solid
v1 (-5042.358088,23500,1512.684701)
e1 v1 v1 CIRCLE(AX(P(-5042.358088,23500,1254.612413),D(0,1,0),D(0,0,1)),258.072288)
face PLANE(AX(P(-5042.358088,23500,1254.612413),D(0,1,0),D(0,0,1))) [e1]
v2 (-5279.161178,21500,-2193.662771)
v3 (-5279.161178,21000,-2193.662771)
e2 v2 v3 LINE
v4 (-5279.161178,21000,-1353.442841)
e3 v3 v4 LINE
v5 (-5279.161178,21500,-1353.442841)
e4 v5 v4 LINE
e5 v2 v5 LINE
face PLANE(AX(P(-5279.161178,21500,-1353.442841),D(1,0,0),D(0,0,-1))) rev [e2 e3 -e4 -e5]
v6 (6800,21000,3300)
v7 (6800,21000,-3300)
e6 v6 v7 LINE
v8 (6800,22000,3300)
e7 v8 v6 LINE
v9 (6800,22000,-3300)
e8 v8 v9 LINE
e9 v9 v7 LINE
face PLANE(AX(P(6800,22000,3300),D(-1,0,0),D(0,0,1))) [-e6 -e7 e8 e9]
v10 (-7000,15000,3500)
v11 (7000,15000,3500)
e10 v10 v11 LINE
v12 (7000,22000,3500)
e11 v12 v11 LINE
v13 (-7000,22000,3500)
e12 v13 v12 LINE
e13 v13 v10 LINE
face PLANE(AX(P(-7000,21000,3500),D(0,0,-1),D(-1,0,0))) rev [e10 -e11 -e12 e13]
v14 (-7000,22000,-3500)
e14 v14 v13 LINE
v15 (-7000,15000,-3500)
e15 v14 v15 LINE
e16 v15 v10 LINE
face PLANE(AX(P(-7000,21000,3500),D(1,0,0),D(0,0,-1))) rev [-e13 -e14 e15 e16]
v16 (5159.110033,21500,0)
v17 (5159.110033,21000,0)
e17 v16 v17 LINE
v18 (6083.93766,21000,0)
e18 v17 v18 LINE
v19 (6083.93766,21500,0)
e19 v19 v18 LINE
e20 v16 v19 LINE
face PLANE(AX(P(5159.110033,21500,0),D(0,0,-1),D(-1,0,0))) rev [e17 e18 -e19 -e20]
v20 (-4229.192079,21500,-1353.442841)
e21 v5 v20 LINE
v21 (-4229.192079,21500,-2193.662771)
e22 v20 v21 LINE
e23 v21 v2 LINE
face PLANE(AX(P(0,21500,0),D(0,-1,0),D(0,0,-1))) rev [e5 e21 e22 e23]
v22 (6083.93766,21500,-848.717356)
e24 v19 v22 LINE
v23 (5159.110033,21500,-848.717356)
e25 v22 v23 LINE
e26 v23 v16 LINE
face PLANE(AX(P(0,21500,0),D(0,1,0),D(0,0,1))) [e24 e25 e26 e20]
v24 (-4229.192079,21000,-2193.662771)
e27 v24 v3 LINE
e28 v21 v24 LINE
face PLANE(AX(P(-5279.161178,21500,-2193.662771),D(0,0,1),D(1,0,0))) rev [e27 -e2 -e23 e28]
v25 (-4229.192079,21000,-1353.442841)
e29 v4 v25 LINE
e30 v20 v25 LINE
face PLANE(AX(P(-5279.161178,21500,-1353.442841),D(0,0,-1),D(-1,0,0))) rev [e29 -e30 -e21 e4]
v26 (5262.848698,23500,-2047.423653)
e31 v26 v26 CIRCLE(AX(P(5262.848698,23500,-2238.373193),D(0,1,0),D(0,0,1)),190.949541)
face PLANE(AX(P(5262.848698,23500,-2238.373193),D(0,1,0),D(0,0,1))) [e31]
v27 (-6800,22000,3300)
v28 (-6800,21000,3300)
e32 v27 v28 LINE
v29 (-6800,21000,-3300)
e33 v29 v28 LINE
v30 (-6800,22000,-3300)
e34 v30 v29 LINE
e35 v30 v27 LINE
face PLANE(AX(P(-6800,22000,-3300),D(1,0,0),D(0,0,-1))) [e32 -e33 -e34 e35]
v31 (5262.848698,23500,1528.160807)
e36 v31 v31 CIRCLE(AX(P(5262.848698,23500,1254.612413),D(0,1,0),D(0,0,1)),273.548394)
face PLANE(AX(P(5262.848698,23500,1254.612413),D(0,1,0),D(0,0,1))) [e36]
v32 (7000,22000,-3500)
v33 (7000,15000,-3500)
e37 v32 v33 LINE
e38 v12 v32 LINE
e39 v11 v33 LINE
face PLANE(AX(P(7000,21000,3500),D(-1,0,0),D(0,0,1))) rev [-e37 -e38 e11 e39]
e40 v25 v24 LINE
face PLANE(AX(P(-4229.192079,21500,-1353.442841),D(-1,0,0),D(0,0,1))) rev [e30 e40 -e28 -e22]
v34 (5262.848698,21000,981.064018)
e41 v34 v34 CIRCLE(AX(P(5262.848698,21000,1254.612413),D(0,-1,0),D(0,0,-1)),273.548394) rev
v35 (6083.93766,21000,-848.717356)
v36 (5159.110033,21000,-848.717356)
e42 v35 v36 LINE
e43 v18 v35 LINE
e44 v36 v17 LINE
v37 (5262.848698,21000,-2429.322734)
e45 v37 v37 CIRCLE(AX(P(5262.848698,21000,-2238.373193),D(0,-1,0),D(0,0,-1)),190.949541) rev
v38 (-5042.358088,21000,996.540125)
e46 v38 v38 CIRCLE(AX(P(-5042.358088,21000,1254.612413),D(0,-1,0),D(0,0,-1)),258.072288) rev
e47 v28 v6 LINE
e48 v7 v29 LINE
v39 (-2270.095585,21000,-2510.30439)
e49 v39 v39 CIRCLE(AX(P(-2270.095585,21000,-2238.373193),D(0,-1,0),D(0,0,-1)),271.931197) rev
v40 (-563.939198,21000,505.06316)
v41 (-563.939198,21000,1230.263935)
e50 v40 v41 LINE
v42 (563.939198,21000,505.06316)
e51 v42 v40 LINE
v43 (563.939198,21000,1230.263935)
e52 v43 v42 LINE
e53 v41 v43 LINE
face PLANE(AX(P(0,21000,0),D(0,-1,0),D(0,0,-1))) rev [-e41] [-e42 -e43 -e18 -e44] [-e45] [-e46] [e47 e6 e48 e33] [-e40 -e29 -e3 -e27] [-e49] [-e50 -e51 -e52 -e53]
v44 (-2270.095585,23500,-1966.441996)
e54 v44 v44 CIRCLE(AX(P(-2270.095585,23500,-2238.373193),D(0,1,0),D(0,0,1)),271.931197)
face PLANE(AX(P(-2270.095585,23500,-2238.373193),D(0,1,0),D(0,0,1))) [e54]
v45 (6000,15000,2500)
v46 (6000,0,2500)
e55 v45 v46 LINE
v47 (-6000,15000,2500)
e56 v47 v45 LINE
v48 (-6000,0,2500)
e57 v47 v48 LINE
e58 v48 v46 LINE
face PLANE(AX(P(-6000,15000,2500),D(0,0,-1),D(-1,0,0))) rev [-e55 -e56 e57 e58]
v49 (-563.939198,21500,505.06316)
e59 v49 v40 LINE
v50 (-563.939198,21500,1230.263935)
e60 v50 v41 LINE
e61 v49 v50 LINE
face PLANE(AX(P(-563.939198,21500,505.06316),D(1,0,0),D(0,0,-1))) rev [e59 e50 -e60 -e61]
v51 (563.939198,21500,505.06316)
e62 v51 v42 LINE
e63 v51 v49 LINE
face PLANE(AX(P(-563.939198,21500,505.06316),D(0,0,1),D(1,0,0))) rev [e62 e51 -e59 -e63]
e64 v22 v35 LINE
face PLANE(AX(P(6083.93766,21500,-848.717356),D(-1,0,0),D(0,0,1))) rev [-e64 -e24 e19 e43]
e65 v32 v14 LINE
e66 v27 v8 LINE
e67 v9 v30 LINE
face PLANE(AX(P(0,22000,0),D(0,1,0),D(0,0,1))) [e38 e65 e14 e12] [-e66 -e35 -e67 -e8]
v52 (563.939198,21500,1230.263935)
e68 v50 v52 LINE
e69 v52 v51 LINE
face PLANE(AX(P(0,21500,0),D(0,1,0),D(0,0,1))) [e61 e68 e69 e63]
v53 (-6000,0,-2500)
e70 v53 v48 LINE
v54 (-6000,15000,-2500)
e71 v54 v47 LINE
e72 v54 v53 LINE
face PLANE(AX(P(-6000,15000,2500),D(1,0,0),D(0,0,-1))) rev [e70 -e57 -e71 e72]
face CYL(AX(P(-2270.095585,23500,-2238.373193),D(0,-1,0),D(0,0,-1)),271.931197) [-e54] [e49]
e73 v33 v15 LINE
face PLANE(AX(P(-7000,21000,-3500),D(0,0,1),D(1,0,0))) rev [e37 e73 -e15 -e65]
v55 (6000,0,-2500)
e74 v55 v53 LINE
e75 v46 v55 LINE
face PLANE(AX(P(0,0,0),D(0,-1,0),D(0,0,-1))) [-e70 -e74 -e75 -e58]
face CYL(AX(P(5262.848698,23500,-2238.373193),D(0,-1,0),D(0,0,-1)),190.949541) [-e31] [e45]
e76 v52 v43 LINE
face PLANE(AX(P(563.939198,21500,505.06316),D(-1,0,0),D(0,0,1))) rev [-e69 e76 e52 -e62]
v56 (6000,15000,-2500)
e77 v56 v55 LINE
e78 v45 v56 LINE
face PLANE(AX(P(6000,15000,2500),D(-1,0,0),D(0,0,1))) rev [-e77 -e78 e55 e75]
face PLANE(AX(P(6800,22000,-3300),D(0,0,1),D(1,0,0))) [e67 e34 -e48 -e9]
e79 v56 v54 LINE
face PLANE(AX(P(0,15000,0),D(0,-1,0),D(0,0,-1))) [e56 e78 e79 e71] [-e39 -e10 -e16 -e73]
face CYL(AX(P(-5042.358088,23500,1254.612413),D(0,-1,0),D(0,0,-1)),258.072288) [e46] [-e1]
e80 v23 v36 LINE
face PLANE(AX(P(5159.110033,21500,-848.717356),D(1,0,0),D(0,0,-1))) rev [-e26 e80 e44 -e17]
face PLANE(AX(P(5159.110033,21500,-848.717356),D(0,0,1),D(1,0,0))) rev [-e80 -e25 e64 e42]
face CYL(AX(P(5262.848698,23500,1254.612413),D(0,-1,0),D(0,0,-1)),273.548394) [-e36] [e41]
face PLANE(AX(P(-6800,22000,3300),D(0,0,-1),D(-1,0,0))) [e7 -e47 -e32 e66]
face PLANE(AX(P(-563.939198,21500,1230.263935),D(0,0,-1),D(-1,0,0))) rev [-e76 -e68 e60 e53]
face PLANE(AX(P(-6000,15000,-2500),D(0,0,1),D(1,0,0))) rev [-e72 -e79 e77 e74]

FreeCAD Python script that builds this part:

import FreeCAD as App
import Part
import Sketcher
from FreeCAD import Vector

doc = App.newDocument("Part")
body = doc.addObject("PartDesign::Body", "Body")

sketch1 = doc.addObject("Sketcher::SketchObject", "Sketch")
body.addObject(sketch1)
sketch1.AttachmentSupport = (doc.XZ_Plane, [""])
sketch1.MapMode = "FlatFace"
sketch1.addGeometry([
    Part.LineSegment(Vector(-6000, -2500, 0), Vector(-6000, 2500, 0)),
    Part.LineSegment(Vector(-6000, 2500, 0), Vector(6000, 2500, 0)),
    Part.LineSegment(Vector(6000, 2500, 0), Vector(6000, -2500, 0)),
    Part.LineSegment(Vector(6000, -2500, 0), Vector(-6000, -2500, 0)),
], False)
sketch1.addConstraint([
    Sketcher.Constraint("Coincident", 0, 2, 1, 1),
    Sketcher.Constraint("Coincident", 1, 2, 2, 1),
    Sketcher.Constraint("Coincident", 2, 2, 3, 1),
    Sketcher.Constraint("Coincident", 3, 2, 0, 1),
    Sketcher.Constraint("Vertical", 0),
    Sketcher.Constraint("Horizontal", 1),
    Sketcher.Constraint("Vertical", 2),
    Sketcher.Constraint("Horizontal", 3),
    Sketcher.Constraint("Symmetric", 0, 2, 2, 2, -1, 1),
    Sketcher.Constraint("DistanceX", 1, 1, 1, 2, 12000.0),
    Sketcher.Constraint("DistanceY", 0, 1, 0, 2, 5000.0),
])
pad1 = doc.addObject("PartDesign::Pad", "Pad")
body.addObject(pad1)
pad1.Profile = sketch1
pad1.Length = 15000
pad1.Reversed = True

sketch2 = doc.addObject("Sketcher::SketchObject", "Sketch001")
body.addObject(sketch2)
sketch2.AttachmentSupport = (doc.XZ_Plane, [""])
sketch2.MapMode = "FlatFace"
sketch2.AttachmentOffset = App.Placement(Vector(0, 0, -15000), App.Rotation())
sketch2.addGeometry([
    Part.LineSegment(Vector(-7000, -3500, 0), Vector(-7000, 3500, 0)),
    Part.LineSegment(Vector(-7000, 3500, 0), Vector(7000, 3500, 0)),
    Part.LineSegment(Vector(7000, 3500, 0), Vector(7000, -3500, 0)),
    Part.LineSegment(Vector(7000, -3500, 0), Vector(-7000, -3500, 0)),
], False)
sketch2.addConstraint([
    Sketcher.Constraint("Coincident", 0, 2, 1, 1),
    Sketcher.Constraint("Coincident", 1, 2, 2, 1),
    Sketcher.Constraint("Coincident", 2, 2, 3, 1),
    Sketcher.Constraint("Coincident", 3, 2, 0, 1),
    Sketcher.Constraint("Vertical", 0),
    Sketcher.Constraint("Horizontal", 1),
    Sketcher.Constraint("Vertical", 2),
    Sketcher.Constraint("Horizontal", 3),
    Sketcher.Constraint("Symmetric", 0, 2, 2, 2, -1, 1),
    Sketcher.Constraint("DistanceX", 1, 1, 1, 2, 14000.0),
    Sketcher.Constraint("DistanceY", 0, 1, 0, 2, 7000.0),
])
pad2 = doc.addObject("PartDesign::Pad", "Pad001")
body.addObject(pad2)
pad2.Profile = sketch2
pad2.Length = 6000
pad2.Reversed = True

sketch3 = doc.addObject("Sketcher::SketchObject", "Sketch002")
body.addObject(sketch3)
sketch3.AttachmentSupport = (doc.XZ_Plane, [""])
sketch3.MapMode = "FlatFace"
sketch3.AttachmentOffset = App.Placement(Vector(0, 0, -21000), App.Rotation())
sketch3.addGeometry([
    Part.LineSegment(Vector(-7000, -3500, 0), Vector(-7000, 3500, 0)),
    Part.LineSegment(Vector(-7000, 3500, 0), Vector(7000, 3500, 0)),
    Part.LineSegment(Vector(7000, 3500, 0), Vector(7000, -3500, 0)),
    Part.LineSegment(Vector(7000, -3500, 0), Vector(-7000, -3500, 0)),
    Part.LineSegment(Vector(6800, 3300, 0), Vector(-6800, 3300, 0)),
    Part.LineSegment(Vector(-6800, 3300, 0), Vector(-6800, -3300, 0)),
    Part.LineSegment(Vector(-6800, -3300, 0), Vector(6800, -3300, 0)),
    Part.LineSegment(Vector(6800, -3300, 0), Vector(6800, 3300, 0)),
], False)
sketch3.addConstraint([
    Sketcher.Constraint("Coincident", 0, 2, 1, 1),
    Sketcher.Constraint("Coincident", 1, 2, 2, 1),
    Sketcher.Constraint("Coincident", 2, 2, 3, 1),
    Sketcher.Constraint("Coincident", 3, 2, 0, 1),
    Sketcher.Constraint("Coincident", 4, 2, 5, 1),
    Sketcher.Constraint("Coincident", 5, 2, 6, 1),
    Sketcher.Constraint("Coincident", 6, 2, 7, 1),
    Sketcher.Constraint("Coincident", 7, 2, 4, 1),
    Sketcher.Constraint("Vertical", 0),
    Sketcher.Constraint("Horizontal", 1),
    Sketcher.Constraint("Vertical", 2),
    Sketcher.Constraint("Horizontal", 3),
    Sketcher.Constraint("Horizontal", 4),
    Sketcher.Constraint("Vertical", 5),
    Sketcher.Constraint("Horizontal", 6),
    Sketcher.Constraint("Vertical", 7),
    Sketcher.Constraint("Symmetric", 0, 2, 2, 2, -1, 1),
    Sketcher.Constraint("Symmetric", 4, 2, 6, 2, -1, 1),
    Sketcher.Constraint("DistanceX", 1, 1, 1, 2, 14000.0),
    Sketcher.Constraint("DistanceX", 4, 2, 4, 1, 13600.0),
    Sketcher.Constraint("DistanceY", 0, 1, 0, 2, 7000.0),
    Sketcher.Constraint("DistanceY", 5, 2, 5, 1, 6600.0),
])
pad3 = doc.addObject("PartDesign::Pad", "Pad002")
body.addObject(pad3)
pad3.Profile = sketch3
pad3.Length = 1000
pad3.Reversed = True

sketch4 = doc.addObject("Sketcher::SketchObject", "Sketch003")
body.addObject(sketch4)
sketch4.AttachmentSupport = (doc.XZ_Plane, [""])
sketch4.MapMode = "FlatFace"
sketch4.AttachmentOffset = App.Placement(Vector(0, 0, -21000), App.Rotation())
sketch4.addGeometry([
    Part.LineSegment(Vector(-5279, -2194, 0), Vector(-5279, -1353, 0)),
    Part.LineSegment(Vector(-5279, -1353, 0), Vector(-4229, -1353, 0)),
    Part.LineSegment(Vector(-4229, -1353, 0), Vector(-4229, -2194, 0)),
    Part.LineSegment(Vector(-4229, -2194, 0), Vector(-5279, -2194, 0)),
    Part.LineSegment(Vector(-564, 505, 0), Vector(-564, 1230, 0)),
    Part.LineSegment(Vector(-564, 1230, 0), Vector(564, 1230, 0)),
    Part.LineSegment(Vector(564, 1230, 0), Vector(564, 505, 0)),
    Part.LineSegment(Vector(564, 505, 0), Vector(-564, 505, 0)),
    Part.LineSegment(Vector(5159, -849, 0), Vector(5159, 0, 0)),
    Part.LineSegment(Vector(5159, 0, 0), Vector(6084, 0, 0)),
    Part.LineSegment(Vector(6084, 0, 0), Vector(6084, -849, 0)),
    Part.LineSegment(Vector(6084, -849, 0), Vector(5159, -849, 0)),
], False)
sketch4.addConstraint([
    Sketcher.Constraint("Coincident", 0, 2, 1, 1),
    Sketcher.Constraint("Coincident", 1, 2, 2, 1),
    Sketcher.Constraint("Coincident", 2, 2, 3, 1),
    Sketcher.Constraint("Coincident", 3, 2, 0, 1),
    Sketcher.Constraint("Coincident", 4, 2, 5, 1),
    Sketcher.Constraint("Coincident", 5, 2, 6, 1),
    Sketcher.Constraint("Coincident", 6, 2, 7, 1),
    Sketcher.Constraint("Coincident", 7, 2, 4, 1),
    Sketcher.Constraint("Coincident", 8, 2, 9, 1),
    Sketcher.Constraint("Coincident", 9, 2, 10, 1),
    Sketcher.Constraint("Coincident", 10, 2, 11, 1),
    Sketcher.Constraint("Coincident", 11, 2, 8, 1),
    Sketcher.Constraint("Vertical", 0),
    Sketcher.Constraint("Horizontal", 1),
    Sketcher.Constraint("Vertical", 2),
    Sketcher.Constraint("Horizontal", 3),
    Sketcher.Constraint("Vertical", 4),
    Sketcher.Constraint("Horizontal", 5),
    Sketcher.Constraint("Vertical", 6),
    Sketcher.Constraint("Horizontal", 7),
    Sketcher.Constraint("Vertical", 8),
    Sketcher.Constraint("Horizontal", 9),
    Sketcher.Constraint("Vertical", 10),
    Sketcher.Constraint("Horizontal", 11),
    Sketcher.Constraint("PointOnObject", 8, 2, -1),
    Sketcher.Constraint("DistanceX", 1, 1, 1, 2, 1049.969099),
    Sketcher.Constraint("DistanceY", 1, 2, 6, 2, 1858.506001),
    Sketcher.Constraint("DistanceY", 0, 1, 0, 2, 840.219931),
    Sketcher.Constraint("DistanceX", 4, 2, -1, 1, 563.939198),
    Sketcher.Constraint("DistanceX", -1, 1, 5, 2, 563.939198),
    Sketcher.Constraint("DistanceX", 9, 1, 9, 2, 924.827627),
    Sketcher.Constraint("DistanceY", 4, 1, 4, 2, 725.200774),
    Sketcher.Constraint("DistanceY", 8, 1, 8, 2, 848.717356),
    Sketcher.Constraint("DistanceY", 0, 2, -1, 1, 1353.442841),
    Sketcher.Constraint("DistanceX", 1, 2, -1, 1, 4229.192079),
    Sketcher.Constraint("DistanceX", -1, 1, 9, 2, 6083.93766),
])
pad4 = doc.addObject("PartDesign::Pad", "Pad003")
body.addObject(pad4)
pad4.Profile = sketch4
pad4.Length = 500
pad4.Reversed = True

sketch5 = doc.addObject("Sketcher::SketchObject", "Sketch004")
body.addObject(sketch5)
sketch5.AttachmentSupport = (doc.XZ_Plane, [""])
sketch5.MapMode = "FlatFace"
sketch5.AttachmentOffset = App.Placement(Vector(0, 0, -21000), App.Rotation())
sketch5.addGeometry([
    Part.Circle(Vector(-2270, -2238, 0), Vector(0, 0, 1), 272),
    Part.Circle(Vector(5263, 1255, 0), Vector(0, 0, 1), 274),
    Part.Circle(Vector(-5042, 1255, 0), Vector(0, 0, 1), 258),
    Part.Circle(Vector(5263, -2238, 0), Vector(0, 0, 1), 191),
], False)
sketch5.addConstraint([
    Sketcher.Constraint("Horizontal", 1, 3, 2, 3),
    Sketcher.Constraint("Horizontal", 0, 3, 3, 3),
    Sketcher.Constraint("Vertical", 1, 3, 3, 3),
    Sketcher.Constraint("Diameter", 1, 547.096789),
    Sketcher.Constraint("Diameter", 3, 381.899081),
    Sketcher.Constraint("Diameter", 0, 543.862394),
    Sketcher.Constraint("Diameter", 2, 516.144576),
    Sketcher.Constraint("DistanceX", -1, 1, 1, 3, 5262.848698),
    Sketcher.Constraint("DistanceX", 2, 3, -1, 1, 5042.358088),
    Sketcher.Constraint("DistanceX", 0, 3, -1, 1, 2270.095585),
    Sketcher.Constraint("DistanceY", 0, 3, -1, 1, 2238.373193),
    Sketcher.Constraint("DistanceY", -1, 1, 1, 3, 1254.612413),
])
pad5 = doc.addObject("PartDesign::Pad", "Pad004")
body.addObject(pad5)
pad5.Profile = sketch5
pad5.Length = 2500
pad5.Reversed = True

doc.recompute()
